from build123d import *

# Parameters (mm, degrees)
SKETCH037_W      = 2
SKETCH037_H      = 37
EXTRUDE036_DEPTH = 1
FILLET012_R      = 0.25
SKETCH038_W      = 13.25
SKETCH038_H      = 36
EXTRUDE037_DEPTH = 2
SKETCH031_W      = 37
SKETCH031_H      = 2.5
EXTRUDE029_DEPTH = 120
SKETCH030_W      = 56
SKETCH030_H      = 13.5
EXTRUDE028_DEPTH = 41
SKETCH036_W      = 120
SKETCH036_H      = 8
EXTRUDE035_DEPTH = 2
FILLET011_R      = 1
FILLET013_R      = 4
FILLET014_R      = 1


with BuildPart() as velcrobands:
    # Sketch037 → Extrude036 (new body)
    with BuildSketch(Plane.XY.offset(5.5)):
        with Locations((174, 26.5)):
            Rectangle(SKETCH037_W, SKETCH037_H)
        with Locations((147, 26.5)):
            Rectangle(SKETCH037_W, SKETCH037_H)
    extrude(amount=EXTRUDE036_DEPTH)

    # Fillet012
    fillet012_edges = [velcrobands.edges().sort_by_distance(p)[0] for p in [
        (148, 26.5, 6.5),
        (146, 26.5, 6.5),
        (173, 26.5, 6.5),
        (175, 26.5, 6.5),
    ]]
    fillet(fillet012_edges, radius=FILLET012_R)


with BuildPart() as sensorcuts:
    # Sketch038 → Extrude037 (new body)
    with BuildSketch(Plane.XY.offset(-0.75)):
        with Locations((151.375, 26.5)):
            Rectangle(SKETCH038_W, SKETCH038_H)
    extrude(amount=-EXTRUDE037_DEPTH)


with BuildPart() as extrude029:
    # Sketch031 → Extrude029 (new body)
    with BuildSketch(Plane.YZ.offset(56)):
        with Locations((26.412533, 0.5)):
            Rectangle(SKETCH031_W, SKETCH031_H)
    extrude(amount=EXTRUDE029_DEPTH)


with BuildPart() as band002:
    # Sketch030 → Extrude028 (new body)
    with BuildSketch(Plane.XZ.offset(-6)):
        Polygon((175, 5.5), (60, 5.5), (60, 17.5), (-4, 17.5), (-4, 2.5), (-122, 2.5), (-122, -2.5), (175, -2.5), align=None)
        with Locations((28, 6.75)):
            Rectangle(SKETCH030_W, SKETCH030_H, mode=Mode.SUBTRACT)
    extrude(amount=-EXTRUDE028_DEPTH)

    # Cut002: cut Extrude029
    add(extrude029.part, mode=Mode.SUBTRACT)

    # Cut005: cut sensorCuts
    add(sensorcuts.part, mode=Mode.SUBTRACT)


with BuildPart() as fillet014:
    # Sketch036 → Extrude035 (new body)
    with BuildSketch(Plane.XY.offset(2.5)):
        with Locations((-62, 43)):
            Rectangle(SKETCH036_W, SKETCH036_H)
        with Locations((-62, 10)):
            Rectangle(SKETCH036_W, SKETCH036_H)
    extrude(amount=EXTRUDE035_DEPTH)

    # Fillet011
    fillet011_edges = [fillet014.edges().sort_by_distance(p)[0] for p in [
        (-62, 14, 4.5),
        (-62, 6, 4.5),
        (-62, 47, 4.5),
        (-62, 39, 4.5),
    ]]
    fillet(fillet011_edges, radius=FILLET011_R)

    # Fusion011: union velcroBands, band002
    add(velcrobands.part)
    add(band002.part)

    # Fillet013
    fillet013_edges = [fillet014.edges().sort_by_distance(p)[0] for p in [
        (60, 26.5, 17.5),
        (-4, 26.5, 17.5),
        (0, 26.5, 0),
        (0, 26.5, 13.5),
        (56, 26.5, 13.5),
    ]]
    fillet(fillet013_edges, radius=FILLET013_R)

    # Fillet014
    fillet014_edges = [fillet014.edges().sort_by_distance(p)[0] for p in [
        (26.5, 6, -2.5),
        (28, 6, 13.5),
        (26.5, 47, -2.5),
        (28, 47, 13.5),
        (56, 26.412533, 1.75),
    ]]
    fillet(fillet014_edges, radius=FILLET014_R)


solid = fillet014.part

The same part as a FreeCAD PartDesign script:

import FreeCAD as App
import Part
import Sketcher


def edges_at(feature, points):
    """Names of the edges that pass closest to the given points."""
    edges = feature.Shape.Edges
    near = lambda p: min(range(len(edges)), key=lambda i: edges[i].distToShape(Part.Vertex(*p))[0])
    return sorted({f"Edge{near(p) + 1}" for p in points})


def add_polygon(sketch, points):
    """Adds a closed chain of lines whose ends are joined by coincident constraints."""
    first, n = sketch.GeometryCount, len(points)
    for a, b in zip(points, points[1:] + points[:1]):
        sketch.addGeometry(Part.LineSegment(App.Vector(*a, 0), App.Vector(*b, 0)), False)
    for i in range(n):
        sketch.addConstraint(Sketcher.Constraint("Coincident", first + i, 2, first + (i + 1) % n, 1))

doc = App.newDocument("Part")
params = doc.addObject("Spreadsheet::Sheet", "Params")
for row, (alias, value) in enumerate([
    ("sketch1_width", "2 mm"),
    ("sketch1_height", "37 mm"),
    ("pad1_length", "1 mm"),
    ("fillet_radius", "0.25 mm"),
    ("sketch2_height", "36 mm"),
    ("sketch2_width", "13.25 mm"),
    ("pad2_length", "2 mm"),
    ("sketch3_width", "37 mm"),
    ("sketch3_height", "2.5 mm"),
    ("pad3_length", "120 mm"),
    ("sketch4_width", "115 mm"),
    ("sketch4_width2", "64 mm"),
    ("sketch4_width3", "118 mm"),
    ("sketch4_width4", "56 mm"),
    ("sketch4_height", "12 mm"),
    ("pad4_length", "41 mm"),
    ("sketch5_width", "120 mm"),
    ("sketch5_height", "8 mm"),
    ("pad5_length", "2 mm"),
    ("fillet2_radius", "1 mm"),
    ("fillet3_radius", "4 mm"),
    ("fillet4_radius", "1 mm"),
], start=1):
    params.set(f"A{row}", alias)
    params.set(f"B{row}", "=" + value)
    params.setAlias(f"B{row}", alias)

body = doc.addObject("PartDesign::Body", "Body")
body.AllowCompound = True

sketch1 = doc.addObject("Sketcher::SketchObject", "Sketch")
body.addObject(sketch1)
sketch1.AttachmentSupport = (doc.XY_Plane, [""])
sketch1.MapMode = "FlatFace"
sketch1.AttachmentOffset = App.Placement(App.Vector(0, 0, 5.5), App.Rotation())
add_polygon(sketch1, [(173, 45), (173, 8), (175, 8), (175, 45)])
add_polygon(sketch1, [(146, 45), (146, 8), (148, 8), (148, 45)])
sketch1.addConstraint([
    Sketcher.Constraint("Vertical", 0),
    Sketcher.Constraint("Horizontal", 1),
    Sketcher.Constraint("Vertical", 2),
    Sketcher.Constraint("Horizontal", 3),
    Sketcher.Constraint("Vertical", 4),
    Sketcher.Constraint("Horizontal", 5),
    Sketcher.Constraint("Vertical", 6),
    Sketcher.Constraint("Horizontal", 7),
    Sketcher.Constraint("Horizontal", 1, 2, 4, 2),
    Sketcher.Constraint("Horizontal", 3, 2, 6, 2),
    Sketcher.Constraint("Equal", 3, 5),
    Sketcher.Constraint("DistanceX", 1, 1, 1, 2, 2.0),
    Sketcher.Constraint("DistanceY", 0, 2, 0, 1, 37.0),
    Sketcher.Constraint("DistanceX", -1, 1, 0, 2, 173.0),
    Sketcher.Constraint("DistanceY", -1, 1, 0, 2, 8.0),
    Sketcher.Constraint("DistanceX", -1, 1, 4, 2, 146.0),
])
sketch1.setExpression("Constraints[19]", "Params.sketch1_width")
sketch1.setExpression("Constraints[20]", "Params.sketch1_height")
pad1 = doc.addObject("PartDesign::Pad", "Pad")
body.addObject(pad1)
pad1.Profile = sketch1
pad1.setExpression("Length", "Params.pad1_length")
doc.recompute()

fillet = doc.addObject("PartDesign::Fillet", "Fillet")
body.addObject(fillet)
fillet.Base = (pad1, edges_at(pad1, [
    (148, 26.5, 6.5),
    (146, 26.5, 6.5),
    (173, 26.5, 6.5),
    (175, 26.5, 6.5),
]))
fillet.setExpression("Radius", "Params.fillet_radius")
body2 = doc.addObject("PartDesign::Body", "Body001")

sketch2 = doc.addObject("Sketcher::SketchObject", "Sketch001")
body2.addObject(sketch2)
sketch2.AttachmentSupport = (doc.getObject("XY_Plane001"), [""])
sketch2.MapMode = "FlatFace"
sketch2.AttachmentOffset = App.Placement(App.Vector(0, 0, -0.75), App.Rotation())
add_polygon(sketch2, [(145, 44), (145, 8), (158, 8), (158, 44)])
sketch2.addConstraint([
    Sketcher.Constraint("Vertical", 0),
    Sketcher.Constraint("Horizontal", 1),
    Sketcher.Constraint("Vertical", 2),
    Sketcher.Constraint("Horizontal", 3),
    Sketcher.Constraint("DistanceY", 0, 2, 0, 1, 36.0),
    Sketcher.Constraint("DistanceX", -1, 1, 1, 2, 158.0),
    Sketcher.Constraint("DistanceX", 1, 1, 1, 2, 13.25),
    Sketcher.Constraint("DistanceY", -1, 1, 0, 2, 8.5),
])
sketch2.setExpression("Constraints[8]", "Params.sketch2_height")
sketch2.setExpression("Constraints[10]", "Params.sketch2_width")
pad2 = doc.addObject("PartDesign::Pad", "Pad001")
body2.addObject(pad2)
pad2.Profile = sketch2
pad2.setExpression("Length", "Params.pad2_length")
pad2.Reversed = True
body3 = doc.addObject("PartDesign::Body", "Body002")

sketch3 = doc.addObject("Sketcher::SketchObject", "Sketch002")
body3.addObject(sketch3)
sketch3.AttachmentSupport = (doc.getObject("YZ_Plane002"), [""])
sketch3.MapMode = "FlatFace"
sketch3.AttachmentOffset = App.Placement(App.Vector(0, 0, 56), App.Rotation())
add_polygon(sketch3, [(7.9, 1.8), (7.9, -0.8), (44.9, -0.8), (44.9, 1.8)])
sketch3.addConstraint([
    Sketcher.Constraint("Vertical", 0),
    Sketcher.Constraint("Horizontal", 1),
    Sketcher.Constraint("Vertical", 2),
    Sketcher.Constraint("Horizontal", 3),
    Sketcher.Constraint("DistanceX", 1, 1, 1, 2, 37.0),
    Sketcher.Constraint("DistanceY", 0, 2, 0, 1, 2.5),
    Sketcher.Constraint("DistanceY", 0, 2, -1, 1, 0.75),
    Sketcher.Constraint("DistanceX", -1, 1, 0, 2, 7.912533),
])
sketch3.setExpression("Constraints[8]", "Params.sketch3_width")
sketch3.setExpression("Constraints[9]", "Params.sketch3_height")
pad3 = doc.addObject("PartDesign::Pad", "Pad002")
body3.addObject(pad3)
pad3.Profile = sketch3
pad3.setExpression("Length", "Params.pad3_length")
body4 = doc.addObject("PartDesign::Body", "Body003")

sketch4 = doc.addObject("Sketcher::SketchObject", "Sketch003")
body4.addObject(sketch4)
sketch4.AttachmentSupport = (doc.getObject("XZ_Plane003"), [""])
sketch4.MapMode = "FlatFace"
sketch4.AttachmentOffset = App.Placement(App.Vector(0, 0, -6), App.Rotation())
add_polygon(sketch4, [(175, 6), (60, 6), (60, 18), (-4, 18), (-4, 2), (-122, 2), (-122, -2), (175, -2)])
add_polygon(sketch4, [(56, 0), (0, 0), (0, 14), (56, 14)])
sketch4.addConstraint([
    Sketcher.Constraint("Horizontal", 0),
    Sketcher.Constraint("Vertical", 1),
    Sketcher.Constraint("Horizontal", 2),
    Sketcher.Constraint("Vertical", 3),
    Sketcher.Constraint("Horizontal", 4),
    Sketcher.Constraint("Vertical", 5),
    Sketcher.Constraint("Horizontal", 6),
    Sketcher.Constraint("Vertical", 7),
    Sketcher.Constraint("Horizontal", 8),
    Sketcher.Constraint("Vertical", 9),
    Sketcher.Constraint("Horizontal", 10),
    Sketcher.Constraint("Vertical", 11),
    Sketcher.Constraint("Coincident", 8, 2, -1, 1),
    Sketcher.Constraint("DistanceX", 0, 2, 0, 1, 115.0),
    Sketcher.Constraint("DistanceX", 2, 2, 2, 1, 64.0),
    Sketcher.Constraint("DistanceX", 4, 2, 4, 1, 118.0),
    Sketcher.Constraint("DistanceX", 8, 2, 8, 1, 56.0),
    Sketcher.Constraint("DistanceY", 1, 1, 1, 2, 12.0),
    Sketcher.Constraint("DistanceY", 3, 2, 3, 1, 15.0),
    Sketcher.Constraint("DistanceY", 5, 2, 5, 1, 5.0),
    Sketcher.Constraint("DistanceY", 9, 1, 9, 2, 13.5),
    Sketcher.Constraint("DistanceX", -1, 1, 0, 2, 60.0),
    Sketcher.Constraint("DistanceY", 9, 2, 2, 2, 4.0),
])
sketch4.setExpression("Constraints[25]", "Params.sketch4_width")
sketch4.setExpression("Constraints[26]", "Params.sketch4_width2")
sketch4.setExpression("Constraints[27]", "Params.sketch4_width3")
sketch4.setExpression("Constraints[28]", "Params.sketch4_width4")
sketch4.setExpression("Constraints[29]", "Params.sketch4_height")
pad4 = doc.addObject("PartDesign::Pad", "Pad003")
body4.addObject(pad4)
pad4.Profile = sketch4
pad4.setExpression("Length", "Params.pad4_length")
pad4.Reversed = True
doc.recompute()

boolean = doc.addObject("PartDesign::Boolean", "Boolean")
body4.addObject(boolean)
boolean.Type = "Cut"
boolean.addObjects([body3])
doc.recompute()

boolean2 = doc.addObject("PartDesign::Boolean", "Boolean001")
body4.addObject(boolean2)
boolean2.Type = "Cut"
boolean2.addObjects([body2])
body5 = doc.addObject("PartDesign::Body", "Body004")
body5.AllowCompound = True

sketch5 = doc.addObject("Sketcher::SketchObject", "Sketch004")
body5.addObject(sketch5)
sketch5.AttachmentSupport = (doc.getObject("XY_Plane004"), [""])
sketch5.MapMode = "FlatFace"
sketch5.AttachmentOffset = App.Placement(App.Vector(0, 0, 2.5), App.Rotation())
add_polygon(sketch5, [(-122, 47), (-122, 39), (-2, 39), (-2, 47)])
add_polygon(sketch5, [(-122, 14), (-122, 6), (-2, 6), (-2, 14)])
sketch5.addConstraint([
    Sketcher.Constraint("Vertical", 0),
    Sketcher.Constraint("Horizontal", 1),
    Sketcher.Constraint("Vertical", 2),
    Sketcher.Constraint("Horizontal", 3),
    Sketcher.Constraint("Vertical", 4),
    Sketcher.Constraint("Horizontal", 5),
    Sketcher.Constraint("Vertical", 6),
    Sketcher.Constraint("Horizontal", 7),
    Sketcher.Constraint("Vertical", 3, 2, 4, 2),
    Sketcher.Constraint("Vertical", 2, 2, 5, 2),
    Sketcher.Constraint("Equal", 2, 4),
    Sketcher.Constraint("DistanceX", 1, 1, 1, 2, 120.0),
    Sketcher.Constraint("DistanceY", 0, 2, 0, 1, 8.0),
    Sketcher.Constraint("DistanceX", 0, 2, -1, 1, 122.0),
    Sketcher.Constraint("DistanceY", -1, 1, 0, 2, 39.0),
    Sketcher.Constraint("DistanceY", -1, 1, 4, 2, 6.0),
])
sketch5.setExpression("Constraints[19]", "Params.sketch5_width")
sketch5.setExpression("Constraints[20]", "Params.sketch5_height")
pad5 = doc.addObject("PartDesign::Pad", "Pad004")
body5.addObject(pad5)
pad5.Profile = sketch5
pad5.setExpression("Length", "Params.pad5_length")
doc.recompute()

fillet2 = doc.addObject("PartDesign::Fillet", "Fillet001")
body5.addObject(fillet2)
fillet2.Base = (pad5, edges_at(pad5, [
    (-62, 14, 4.5),
    (-62, 6, 4.5),
    (-62, 47, 4.5),
    (-62, 39, 4.5),
]))
fillet2.setExpression("Radius", "Params.fillet2_radius")
doc.recompute()

boolean3 = doc.addObject("PartDesign::Boolean", "Boolean002")
body5.addObject(boolean3)
boolean3.Type = "Fuse"
boolean3.addObjects([body])
doc.recompute()

boolean4 = doc.addObject("PartDesign::Boolean", "Boolean003")
body5.addObject(boolean4)
boolean4.Type = "Fuse"
boolean4.addObjects([body4])
doc.recompute()

fillet3 = doc.addObject("PartDesign::Fillet", "Fillet002")
body5.addObject(fillet3)
fillet3.Base = (boolean4, edges_at(boolean4, [
    (60, 26.5, 17.5),
    (-4, 26.5, 17.5),
    (0, 26.5, 0),
    (0, 26.5, 13.5),
    (56, 26.5, 13.5),
]))
fillet3.setExpression("Radius", "Params.fillet3_radius")
doc.recompute()

fillet4 = doc.addObject("PartDesign::Fillet", "Fillet003")
body5.addObject(fillet4)
fillet4.Base = (fillet3, edges_at(fillet3, [
    (26.5, 6, -2.5),
    (28, 6, 13.5),
    (26.5, 47, -2.5),
    (28, 47, 13.5),
    (56, 26.413, 1.75),
]))
fillet4.setExpression("Radius", "Params.fillet4_radius")

doc.recompute()
